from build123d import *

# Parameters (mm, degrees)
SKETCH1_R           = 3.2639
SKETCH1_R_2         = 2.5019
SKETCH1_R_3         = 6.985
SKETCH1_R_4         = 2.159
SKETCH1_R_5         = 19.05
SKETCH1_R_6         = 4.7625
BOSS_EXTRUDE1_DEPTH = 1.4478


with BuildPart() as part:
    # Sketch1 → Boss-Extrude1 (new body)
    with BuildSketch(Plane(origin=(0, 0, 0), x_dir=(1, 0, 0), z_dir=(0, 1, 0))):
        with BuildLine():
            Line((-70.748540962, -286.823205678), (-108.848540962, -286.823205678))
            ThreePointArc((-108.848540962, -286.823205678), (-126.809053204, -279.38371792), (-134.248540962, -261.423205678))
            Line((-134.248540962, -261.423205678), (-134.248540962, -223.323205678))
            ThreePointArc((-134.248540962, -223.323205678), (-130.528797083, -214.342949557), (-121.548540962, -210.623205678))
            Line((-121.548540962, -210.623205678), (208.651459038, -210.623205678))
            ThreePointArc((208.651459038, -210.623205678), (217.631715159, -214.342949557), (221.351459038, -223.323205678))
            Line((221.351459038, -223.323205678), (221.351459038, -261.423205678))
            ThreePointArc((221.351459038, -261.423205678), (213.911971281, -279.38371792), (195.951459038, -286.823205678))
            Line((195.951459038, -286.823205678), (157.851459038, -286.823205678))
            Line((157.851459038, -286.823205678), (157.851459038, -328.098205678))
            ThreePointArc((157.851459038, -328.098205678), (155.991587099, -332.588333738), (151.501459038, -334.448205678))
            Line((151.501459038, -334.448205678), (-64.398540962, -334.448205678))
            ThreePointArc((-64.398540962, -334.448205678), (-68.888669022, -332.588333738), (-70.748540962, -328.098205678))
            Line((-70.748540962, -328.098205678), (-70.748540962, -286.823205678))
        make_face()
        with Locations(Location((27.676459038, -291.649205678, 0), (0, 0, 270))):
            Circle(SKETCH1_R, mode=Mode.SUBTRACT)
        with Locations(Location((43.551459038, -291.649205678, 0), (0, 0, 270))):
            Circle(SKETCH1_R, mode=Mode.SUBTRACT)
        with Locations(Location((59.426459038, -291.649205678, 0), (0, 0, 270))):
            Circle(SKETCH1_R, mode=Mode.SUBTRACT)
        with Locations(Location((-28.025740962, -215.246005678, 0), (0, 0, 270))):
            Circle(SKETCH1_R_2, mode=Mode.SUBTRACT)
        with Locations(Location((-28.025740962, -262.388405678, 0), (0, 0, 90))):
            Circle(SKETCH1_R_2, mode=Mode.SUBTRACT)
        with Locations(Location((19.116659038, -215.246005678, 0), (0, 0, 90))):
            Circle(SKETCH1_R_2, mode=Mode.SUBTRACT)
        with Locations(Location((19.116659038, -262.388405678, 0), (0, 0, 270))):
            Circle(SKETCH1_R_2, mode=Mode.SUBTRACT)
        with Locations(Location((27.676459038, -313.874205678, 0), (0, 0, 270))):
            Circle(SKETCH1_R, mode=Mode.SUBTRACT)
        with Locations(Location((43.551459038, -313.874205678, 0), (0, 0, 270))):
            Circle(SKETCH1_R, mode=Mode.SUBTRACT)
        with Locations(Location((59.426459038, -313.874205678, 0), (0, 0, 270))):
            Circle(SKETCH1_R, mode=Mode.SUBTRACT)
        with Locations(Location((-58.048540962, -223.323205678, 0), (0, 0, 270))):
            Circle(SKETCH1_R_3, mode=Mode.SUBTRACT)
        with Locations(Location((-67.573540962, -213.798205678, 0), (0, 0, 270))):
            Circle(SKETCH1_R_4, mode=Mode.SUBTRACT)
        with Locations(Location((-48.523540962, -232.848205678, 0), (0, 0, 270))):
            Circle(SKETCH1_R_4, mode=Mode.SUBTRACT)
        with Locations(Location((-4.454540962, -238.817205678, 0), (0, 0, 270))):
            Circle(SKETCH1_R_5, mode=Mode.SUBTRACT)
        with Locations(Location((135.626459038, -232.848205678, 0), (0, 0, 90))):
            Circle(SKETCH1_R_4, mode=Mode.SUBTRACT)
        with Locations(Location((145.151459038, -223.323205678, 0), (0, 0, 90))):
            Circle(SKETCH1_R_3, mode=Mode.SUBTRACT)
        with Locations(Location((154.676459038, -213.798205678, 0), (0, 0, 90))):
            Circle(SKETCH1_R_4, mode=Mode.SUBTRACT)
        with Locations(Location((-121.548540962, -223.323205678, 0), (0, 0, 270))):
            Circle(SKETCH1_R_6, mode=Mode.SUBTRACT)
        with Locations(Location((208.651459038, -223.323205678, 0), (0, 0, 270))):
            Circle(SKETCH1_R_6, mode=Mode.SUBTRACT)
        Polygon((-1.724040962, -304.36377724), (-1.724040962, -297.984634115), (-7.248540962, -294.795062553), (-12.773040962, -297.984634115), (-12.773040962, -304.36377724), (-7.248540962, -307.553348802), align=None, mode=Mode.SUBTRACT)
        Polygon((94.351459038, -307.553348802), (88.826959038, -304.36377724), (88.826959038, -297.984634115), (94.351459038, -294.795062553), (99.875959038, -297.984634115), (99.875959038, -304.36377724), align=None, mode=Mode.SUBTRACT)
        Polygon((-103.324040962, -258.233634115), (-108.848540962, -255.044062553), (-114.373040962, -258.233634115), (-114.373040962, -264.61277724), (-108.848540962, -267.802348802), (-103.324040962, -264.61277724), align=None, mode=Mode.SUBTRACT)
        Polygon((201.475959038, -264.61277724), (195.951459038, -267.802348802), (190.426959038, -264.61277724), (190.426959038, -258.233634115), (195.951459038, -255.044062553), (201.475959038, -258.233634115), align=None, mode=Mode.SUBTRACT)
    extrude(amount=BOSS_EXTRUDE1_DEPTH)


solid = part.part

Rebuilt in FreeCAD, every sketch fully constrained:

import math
import FreeCAD as App
import Part
import Sketcher

V = App.Vector
Q = App.Units.Quantity


def add_polygon(sketch, points):
    """Adds a closed chain of lines whose ends are joined by coincident constraints."""
    first, n = sketch.GeometryCount, len(points)
    for a, b in zip(points, points[1:] + points[:1]):
        sketch.addGeometry(Part.LineSegment(App.Vector(*a, 0), App.Vector(*b, 0)), False)
    for i in range(n):
        sketch.addConstraint(Sketcher.Constraint("Coincident", first + i, 2, first + (i + 1) % n, 1))

doc = App.newDocument("Part")
body = doc.addObject("PartDesign::Body", "Body")

# Sketch on XZ plane
sketch1 = body.newObject("Sketcher::SketchObject", "Sketch")
sketch1.AttachmentSupport = (doc.getObject("XZ_Plane"), [""])
sketch1.MapMode = "FlatFace"
sketch1.addGeometry(Part.LineSegment(V(-108.848541, 286.823206, 0), V(-70.748541, 286.823206, 0)), False)  # 0
sketch1.addGeometry(Part.LineSegment(V(-70.748541, 286.823206, 0), V(-70.748541, 328.098206, 0)), False)  # 1
sketch1.addGeometry(Part.ArcOfCircle(Part.Circle(V(-64.398541, 328.098206, 0), V(0, 0, 1), 6.35), math.radians(90), math.radians(180)), False)  # 2
sketch1.addGeometry(Part.LineSegment(V(-64.398541, 334.448206, 0), V(151.501459, 334.448206, 0)), False)  # 3
sketch1.addGeometry(Part.ArcOfCircle(Part.Circle(V(151.501459, 328.098206, 0), V(0, 0, 1), 6.35), math.radians(0), math.radians(90)), False)  # 4
sketch1.addGeometry(Part.LineSegment(V(157.851459, 328.098206, 0), V(157.851459, 286.823206, 0)), False)  # 5
sketch1.addGeometry(Part.LineSegment(V(157.851459, 286.823206, 0), V(195.951459, 286.823206, 0)), False)  # 6
sketch1.addGeometry(Part.ArcOfCircle(Part.Circle(V(195.951459, 261.423206, 0), V(0, 0, 1), 25.4), math.radians(0), math.radians(90)), False)  # 7
sketch1.addGeometry(Part.LineSegment(V(221.351459, 261.423206, 0), V(221.351459, 223.323206, 0)), False)  # 8
sketch1.addGeometry(Part.ArcOfCircle(Part.Circle(V(208.651459, 223.323206, 0), V(0, 0, 1), 12.7), math.radians(-90), math.radians(0)), False)  # 9
sketch1.addGeometry(Part.LineSegment(V(208.651459, 210.623206, 0), V(-121.548541, 210.623206, 0)), False)  # 10
sketch1.addGeometry(Part.ArcOfCircle(Part.Circle(V(-121.548541, 223.323206, 0), V(0, 0, 1), 12.7), math.radians(180), math.radians(270)), False)  # 11
sketch1.addGeometry(Part.LineSegment(V(-134.248541, 223.323206, 0), V(-134.248541, 261.423206, 0)), False)  # 12
sketch1.addGeometry(Part.ArcOfCircle(Part.Circle(V(-108.848541, 261.423206, 0), V(0, 0, 1), 25.4), math.radians(90), math.radians(180)), False)  # 13
sketch1.addGeometry(Part.Circle(V(59.426459, 313.874206, 0), V(0, 0, 1), 3.2639), False)  # 14
add_polygon(sketch1, [(94.351459, 307.553349), (88.826959, 304.363777), (88.826959, 297.984634), (94.351459, 294.795063), (99.875959, 297.984634), (99.875959, 304.363777)])  # lines 15-20
sketch1.addGeometry(Part.Circle(V(59.426459, 291.649206, 0), V(0, 0, 1), 3.2639), False)  # 21
sketch1.addGeometry(Part.Circle(V(43.551459, 313.874206, 0), V(0, 0, 1), 3.2639), False)  # 22
sketch1.addGeometry(Part.Circle(V(27.676459, 313.874206, 0), V(0, 0, 1), 3.2639), False)  # 23
sketch1.addGeometry(Part.Circle(V(43.551459, 291.649206, 0), V(0, 0, 1), 3.2639), False)  # 24
sketch1.addGeometry(Part.Circle(V(27.676459, 291.649206, 0), V(0, 0, 1), 3.2639), False)  # 25
add_polygon(sketch1, [(-1.724041, 304.363777), (-7.248541, 307.553349), (-12.773041, 304.363777), (-12.773041, 297.984634), (-7.248541, 294.795063), (-1.724041, 297.984634)])  # lines 26-31
add_polygon(sketch1, [(201.475959, 264.612777), (195.951459, 267.802349), (190.426959, 264.612777), (190.426959, 258.233634), (195.951459, 255.044063), (201.475959, 258.233634)])  # lines 32-37
sketch1.addGeometry(Part.Circle(V(135.626459, 232.848206, 0), V(0, 0, 1), 2.159), False)  # 38
sketch1.addGeometry(Part.Circle(V(208.651459, 223.323206, 0), V(0, 0, 1), 4.7625), False)  # 39
sketch1.addGeometry(Part.Circle(V(145.151459, 223.323206, 0), V(0, 0, 1), 6.985), False)  # 40
sketch1.addGeometry(Part.Circle(V(154.676459, 213.798206, 0), V(0, 0, 1), 2.159), False)  # 41
sketch1.addGeometry(Part.Circle(V(19.116659, 262.388406, 0), V(0, 0, 1), 2.5019), False)  # 42
sketch1.addGeometry(Part.Circle(V(-28.025741, 262.388406, 0), V(0, 0, 1), 2.5019), False)  # 43
sketch1.addGeometry(Part.Circle(V(-4.454541, 238.817206, 0), V(0, 0, 1), 19.05), False)  # 44
add_polygon(sketch1, [(-103.324041, 258.233634), (-103.324041, 264.612777), (-108.848541, 267.802349), (-114.373041, 264.612777), (-114.373041, 258.233634), (-108.848541, 255.044063)])  # lines 45-50
sketch1.addGeometry(Part.Circle(V(19.116659, 215.246006, 0), V(0, 0, 1), 2.5019), False)  # 51
sketch1.addGeometry(Part.Circle(V(-28.025741, 215.246006, 0), V(0, 0, 1), 2.5019), False)  # 52
sketch1.addGeometry(Part.Circle(V(-48.523541, 232.848206, 0), V(0, 0, 1), 2.159), False)  # 53
sketch1.addGeometry(Part.Circle(V(-58.048541, 223.323206, 0), V(0, 0, 1), 6.985), False)  # 54
sketch1.addGeometry(Part.Circle(V(-67.573541, 213.798206, 0), V(0, 0, 1), 2.159), False)  # 55
sketch1.addGeometry(Part.Circle(V(-121.548541, 223.323206, 0), V(0, 0, 1), 4.7625), False)  # 56
sketch1.addConstraint(Sketcher.Constraint("Coincident", 0, 2, 1, 1))
sketch1.addConstraint(Sketcher.Constraint("Tangent", 1, 2, 2, 2))
sketch1.addConstraint(Sketcher.Constraint("Tangent", 2, 1, 3, 1))
sketch1.addConstraint(Sketcher.Constraint("Tangent", 3, 2, 4, 2))
sketch1.addConstraint(Sketcher.Constraint("Tangent", 4, 1, 5, 1))
sketch1.addConstraint(Sketcher.Constraint("Coincident", 5, 2, 6, 1))
sketch1.addConstraint(Sketcher.Constraint("Tangent", 6, 2, 7, 2))
sketch1.addConstraint(Sketcher.Constraint("Tangent", 7, 1, 8, 1))
sketch1.addConstraint(Sketcher.Constraint("Tangent", 8, 2, 9, 2))
sketch1.addConstraint(Sketcher.Constraint("Tangent", 9, 1, 10, 1))
sketch1.addConstraint(Sketcher.Constraint("Tangent", 10, 2, 11, 2))
sketch1.addConstraint(Sketcher.Constraint("Tangent", 11, 1, 12, 1))
sketch1.addConstraint(Sketcher.Constraint("Tangent", 12, 2, 13, 2))
sketch1.addConstraint(Sketcher.Constraint("Tangent", 13, 1, 0, 1))
sketch1.addConstraint(Sketcher.Constraint("Horizontal", 0))
sketch1.addConstraint(Sketcher.Constraint("Vertical", 1))
sketch1.addConstraint(Sketcher.Constraint("Horizontal", 3))
sketch1.addConstraint(Sketcher.Constraint("Vertical", 5))
sketch1.addConstraint(Sketcher.Constraint("Horizontal", 6))
sketch1.addConstraint(Sketcher.Constraint("Vertical", 8))
sketch1.addConstraint(Sketcher.Constraint("Horizontal", 10))
sketch1.addConstraint(Sketcher.Constraint("Vertical", 12))
sketch1.addConstraint(Sketcher.Constraint("Vertical", 16))
sketch1.addConstraint(Sketcher.Constraint("Vertical", 19))
sketch1.addConstraint(Sketcher.Constraint("Vertical", 28))
sketch1.addConstraint(Sketcher.Constraint("Vertical", 31))
sketch1.addConstraint(Sketcher.Constraint("Vertical", 34))
sketch1.addConstraint(Sketcher.Constraint("Vertical", 37))
sketch1.addConstraint(Sketcher.Constraint("Vertical", 45))
sketch1.addConstraint(Sketcher.Constraint("Vertical", 48))
sketch1.addConstraint(Sketcher.Constraint("Coincident", 39, 3, 9, 3))
sketch1.addConstraint(Sketcher.Constraint("Coincident", 56, 3, 11, 3))
sketch1.addConstraint(Sketcher.Constraint("Equal", 2, 4))
sketch1.addConstraint(Sketcher.Constraint("Equal", 9, 11))
sketch1.addConstraint(Sketcher.Constraint("Equal", 7, 13))
sketch1.addConstraint(Sketcher.Constraint("Equal", 14, 21))
sketch1.addConstraint(Sketcher.Constraint("Equal", 21, 22))
sketch1.addConstraint(Sketcher.Constraint("Equal", 22, 23))
sketch1.addConstraint(Sketcher.Constraint("Equal", 23, 24))
sketch1.addConstraint(Sketcher.Constraint("Equal", 24, 25))
sketch1.addConstraint(Sketcher.Constraint("Equal", 38, 41))
sketch1.addConstraint(Sketcher.Constraint("Equal", 42, 43))
sketch1.addConstraint(Sketcher.Constraint("Equal", 43, 51))
sketch1.addConstraint(Sketcher.Constraint("Equal", 51, 52))
sketch1.addConstraint(Sketcher.Constraint("Equal", 41, 53))
sketch1.addConstraint(Sketcher.Constraint("Equal", 40, 54))
sketch1.addConstraint(Sketcher.Constraint("Equal", 53, 55))
sketch1.addConstraint(Sketcher.Constraint("Equal", 39, 56))
sketch1.addConstraint(Sketcher.Constraint("Parallel", 15, 18))
sketch1.addConstraint(Sketcher.Constraint("Parallel", 17, 20))
sketch1.addConstraint(Sketcher.Constraint("Parallel", 20, 26))
sketch1.addConstraint(Sketcher.Constraint("Parallel", 18, 27))
sketch1.addConstraint(Sketcher.Constraint("Parallel", 26, 29))
sketch1.addConstraint(Sketcher.Constraint("Parallel", 27, 30))
sketch1.addConstraint(Sketcher.Constraint("Parallel", 29, 32))
sketch1.addConstraint(Sketcher.Constraint("Parallel", 30, 33))
sketch1.addConstraint(Sketcher.Constraint("Parallel", 32, 35))
sketch1.addConstraint(Sketcher.Constraint("Parallel", 33, 36))
sketch1.addConstraint(Sketcher.Constraint("Parallel", 35, 46))
sketch1.addConstraint(Sketcher.Constraint("Parallel", 36, 47))
sketch1.addConstraint(Sketcher.Constraint("Parallel", 46, 49))
sketch1.addConstraint(Sketcher.Constraint("Parallel", 47, 50))
sketch1.addConstraint(Sketcher.Constraint("Horizontal", 7, 3, 13, 3))
sketch1.addConstraint(Sketcher.Constraint("Horizontal", 14, 3, 22, 3))
sketch1.addConstraint(Sketcher.Constraint("Horizontal", 22, 3, 23, 3))
sketch1.addConstraint(Sketcher.Constraint("Horizontal", 21, 3, 24, 3))
sketch1.addConstraint(Sketcher.Constraint("Horizontal", 24, 3, 25, 3))
sketch1.addConstraint(Sketcher.Constraint("Horizontal", 39, 3, 40, 3))
sketch1.addConstraint(Sketcher.Constraint("Horizontal", 42, 3, 43, 3))
sketch1.addConstraint(Sketcher.Constraint("Horizontal", 51, 3, 52, 3))
sketch1.addConstraint(Sketcher.Constraint("Horizontal", 38, 3, 53, 3))
sketch1.addConstraint(Sketcher.Constraint("Horizontal", 40, 3, 54, 3))
sketch1.addConstraint(Sketcher.Constraint("Horizontal", 41, 3, 55, 3))
sketch1.addConstraint(Sketcher.Constraint("Horizontal", 16, 2, 18, 2))
sketch1.addConstraint(Sketcher.Constraint("Horizontal", 15, 2, 19, 2))
sketch1.addConstraint(Sketcher.Constraint("Horizontal", 20, 2, 26, 2))
sketch1.addConstraint(Sketcher.Constraint("Horizontal", 19, 2, 27, 2))
sketch1.addConstraint(Sketcher.Constraint("Horizontal", 18, 2, 28, 2))
sketch1.addConstraint(Sketcher.Constraint("Horizontal", 17, 2, 29, 2))
sketch1.addConstraint(Sketcher.Constraint("Horizontal", 28, 2, 30, 2))
sketch1.addConstraint(Sketcher.Constraint("Horizontal", 34, 2, 36, 2))
sketch1.addConstraint(Sketcher.Constraint("Horizontal", 33, 2, 37, 2))
sketch1.addConstraint(Sketcher.Constraint("Horizontal", 37, 2, 45, 2))
sketch1.addConstraint(Sketcher.Constraint("Horizontal", 32, 2, 46, 2))
sketch1.addConstraint(Sketcher.Constraint("Horizontal", 45, 2, 47, 2))
sketch1.addConstraint(Sketcher.Constraint("Horizontal", 36, 2, 48, 2))
sketch1.addConstraint(Sketcher.Constraint("Horizontal", 35, 2, 49, 2))
sketch1.addConstraint(Sketcher.Constraint("Vertical", 14, 3, 21, 3))
sketch1.addConstraint(Sketcher.Constraint("Vertical", 22, 3, 24, 3))
sketch1.addConstraint(Sketcher.Constraint("Vertical", 23, 3, 25, 3))
sketch1.addConstraint(Sketcher.Constraint("Vertical", 42, 3, 51, 3))
sketch1.addConstraint(Sketcher.Constraint("Vertical", 43, 3, 52, 3))
sketch1.addConstraint(Sketcher.Constraint("Vertical", 17, 2, 20, 2))
sketch1.addConstraint(Sketcher.Constraint("Vertical", 6, 2, 32, 2))
sketch1.addConstraint(Sketcher.Constraint("Vertical", 13, 1, 46, 2))
sketch1.addConstraint(Sketcher.Constraint("Equal", 0, 6))
sketch1.addConstraint(Sketcher.Constraint("Equal", 6, 8))
sketch1.addConstraint(Sketcher.Constraint("Equal", 31, 34))
sketch1.addConstraint(Sketcher.Constraint("Equal", 30, 32))
sketch1.addConstraint(Sketcher.Constraint("Radius", 7, Q("1 in")))
sketch1.addConstraint(Sketcher.Constraint("Diameter", 44, Q("1.5 in")))
sketch1.addConstraint(Sketcher.Constraint("Radius", 9, Q("0.5 in")))
sketch1.addConstraint(Sketcher.Constraint("Diameter", 38, Q("0.17 in")))
sketch1.addConstraint(Sketcher.Constraint("Diameter", 40, Q("0.55 in")))
sketch1.addConstraint(Sketcher.Constraint("DistanceX", 10, 2, 10, 1, Q("13 in")))
sketch1.addConstraint(Sketcher.Constraint("Radius", 2, Q("0.25 in")))
sketch1.addConstraint(Sketcher.Constraint("Diameter", 14, Q("0.257 in")))
sketch1.addConstraint(Sketcher.Constraint("Diameter", 39, Q("0.375 in")))
sketch1.addConstraint(Sketcher.Constraint("Diameter", 42, Q("0.197 in")))
sketch1.addConstraint(Sketcher.Constraint("DistanceX", 0, 1, 0, 2, Q("1.5 in")))
sketch1.addConstraint(Sketcher.Constraint("Angle", 15, Q("-150 deg")))
sketch1.addConstraint(Sketcher.Constraint("DistanceY", 1, 1, 1, 2, Q("1.625 in")))
sketch1.addConstraint(Sketcher.Constraint("DistanceY", 16, 2, 16, 1, 6.379143))
sketch1.addConstraint(Sketcher.Constraint("DistanceX", 2, 3, -1, 1, 64.398541))
sketch1.addConstraint(Sketcher.Constraint("DistanceX", -1, 1, 14, 3, 59.426459))
sketch1.addConstraint(Sketcher.Constraint("DistanceX", -1, 1, 22, 3, 43.551459))
sketch1.addConstraint(Sketcher.Constraint("DistanceX", -1, 1, 23, 3, 27.676459))
sketch1.addConstraint(Sketcher.Constraint("DistanceX", -1, 1, 38, 3, 135.626459))
sketch1.addConstraint(Sketcher.Constraint("DistanceX", -1, 1, 40, 3, 145.151459))
sketch1.addConstraint(Sketcher.Constraint("DistanceX", -1, 1, 41, 3, 154.676459))
sketch1.addConstraint(Sketcher.Constraint("DistanceX", -1, 1, 42, 3, 19.116659))
sketch1.addConstraint(Sketcher.Constraint("DistanceX", 43, 3, -1, 1, 28.025741))
sketch1.addConstraint(Sketcher.Constraint("DistanceX", 44, 3, -1, 1, 4.454541))
sketch1.addConstraint(Sketcher.Constraint("DistanceX", 53, 3, -1, 1, 48.523541))
sketch1.addConstraint(Sketcher.Constraint("DistanceX", 54, 3, -1, 1, 58.048541))
sketch1.addConstraint(Sketcher.Constraint("DistanceX", 55, 3, -1, 1, 67.573541))
sketch1.addConstraint(Sketcher.Constraint("DistanceX", -1, 1, 15, 2, 88.826959))
sketch1.addConstraint(Sketcher.Constraint("DistanceX", -1, 1, 17, 2, 94.351459))
sketch1.addConstraint(Sketcher.Constraint("DistanceY", -1, 1, 20, 2, 307.553349))
sketch1.addConstraint(Sketcher.Constraint("DistanceX", 26, 2, -1, 1, 7.248541))
sketch1.addConstraint(Sketcher.Constraint("DistanceY", -1, 1, 32, 2, 267.802349))
sketch1.addConstraint(Sketcher.Constraint("DistanceY", -1, 1, 2, 3, 328.098206))
sketch1.addConstraint(Sketcher.Constraint("DistanceY", -1, 1, 14, 3, 313.874206))
sketch1.addConstraint(Sketcher.Constraint("DistanceY", -1, 1, 21, 3, 291.649206))
sketch1.addConstraint(Sketcher.Constraint("DistanceY", -1, 1, 38, 3, 232.848206))
sketch1.addConstraint(Sketcher.Constraint("DistanceY", -1, 1, 41, 3, 213.798206))
sketch1.addConstraint(Sketcher.Constraint("DistanceY", -1, 1, 42, 3, 262.388406))
sketch1.addConstraint(Sketcher.Constraint("DistanceY", -1, 1, 44, 3, 238.817206))
sketch1.addConstraint(Sketcher.Constraint("DistanceY", -1, 1, 51, 3, 215.246006))
pad1 = body.newObject("PartDesign::Pad", "Pad")
pad1.Profile = sketch1
pad1.Length = Q("0.057 in")
pad1.Reversed = True

doc.recompute()
